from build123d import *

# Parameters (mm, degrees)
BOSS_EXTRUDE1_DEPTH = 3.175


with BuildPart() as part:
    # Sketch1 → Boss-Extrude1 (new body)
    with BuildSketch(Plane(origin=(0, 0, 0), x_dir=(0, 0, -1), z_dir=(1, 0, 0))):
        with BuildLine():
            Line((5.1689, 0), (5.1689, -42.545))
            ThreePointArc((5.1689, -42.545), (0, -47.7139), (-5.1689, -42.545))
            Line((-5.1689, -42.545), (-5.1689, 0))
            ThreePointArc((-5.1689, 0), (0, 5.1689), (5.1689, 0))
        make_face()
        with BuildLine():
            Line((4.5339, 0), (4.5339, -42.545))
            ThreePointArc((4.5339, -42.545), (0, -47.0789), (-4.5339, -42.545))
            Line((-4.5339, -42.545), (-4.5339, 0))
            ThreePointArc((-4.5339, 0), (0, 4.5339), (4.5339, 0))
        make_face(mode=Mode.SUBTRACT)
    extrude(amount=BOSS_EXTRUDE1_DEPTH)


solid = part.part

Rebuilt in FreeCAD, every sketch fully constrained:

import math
import FreeCAD as App
import Part
import Sketcher
from FreeCAD import Vector
Q = App.Units.Quantity

doc = App.newDocument("Part")
params = doc.addObject("Spreadsheet::Sheet", "Params")
for row, (alias, value) in enumerate([
    ("sketch1_width", "1.675 in"),
    ("pad1_length", "0.125 in"),
], start=1):
    params.set(f"A{row}", alias)
    params.set(f"B{row}", "=" + value)
    params.setAlias(f"B{row}", alias)

body = doc.addObject("PartDesign::Body", "Body")

sketch1 = doc.addObject("Sketcher::SketchObject", "Sketch")
body.addObject(sketch1)
sketch1.AttachmentSupport = (doc.YZ_Plane, [""])
sketch1.MapMode = "FlatFace"
sketch1.addGeometry([
    Part.LineSegment(Vector(-42.5, -5.2, 0), Vector(0, -5.2, 0)),
    Part.ArcOfCircle(Part.Circle(Vector(0, 0, 0), Vector(0, 0, 1), 5.2), math.radians(-90), math.radians(90)),
    Part.LineSegment(Vector(0, 5.2, 0), Vector(-42.5, 5.2, 0)),
    Part.ArcOfCircle(Part.Circle(Vector(-42.5, 0, 0), Vector(0, 0, 1), 5.2), math.radians(90), math.radians(270)),
    Part.LineSegment(Vector(0, -4.5, 0), Vector(-42.5, -4.5, 0)),
    Part.ArcOfCircle(Part.Circle(Vector(-42.5, 0, 0), Vector(0, 0, 1), 4.5), math.radians(90), math.radians(270)),
    Part.LineSegment(Vector(-42.5, 4.5, 0), Vector(0, 4.5, 0)),
    Part.ArcOfCircle(Part.Circle(Vector(0, 0, 0), Vector(0, 0, 1), 4.5), math.radians(-90), math.radians(90)),
], False)
sketch1.addConstraint([
    Sketcher.Constraint("Tangent", 0, 2, 1, 1),
    Sketcher.Constraint("Tangent", 1, 2, 2, 1),
    Sketcher.Constraint("Tangent", 2, 2, 3, 1),
    Sketcher.Constraint("Tangent", 3, 2, 0, 1),
    Sketcher.Constraint("Tangent", 4, 2, 5, 2),
    Sketcher.Constraint("Tangent", 5, 1, 6, 1),
    Sketcher.Constraint("Tangent", 6, 2, 7, 2),
    Sketcher.Constraint("Tangent", 7, 1, 4, 1),
    Sketcher.Constraint("Horizontal", 0),
    Sketcher.Constraint("Horizontal", 2),
    Sketcher.Constraint("Horizontal", 4),
    Sketcher.Constraint("Horizontal", 6),
    Sketcher.Constraint("Coincident", 1, 3, -1, 1),
    Sketcher.Constraint("Coincident", 7, 3, -1, 1),
    Sketcher.Constraint("Vertical", 5, 3, 2, 2),
    Sketcher.Constraint("Radius", 1, Q("0.2035 in")),
    Sketcher.Constraint("Radius", 5, Q("0.1785 in")),
    Sketcher.Constraint("DistanceX", 0, 1, 0, 2, Q("1.675 in")),
])
sketch1.setExpression("Constraints[17]", "Params.sketch1_width")
pad1 = doc.addObject("PartDesign::Pad", "Pad")
body.addObject(pad1)
pad1.Profile = sketch1
pad1.setExpression("Length", "Params.pad1_length")

doc.recompute()
